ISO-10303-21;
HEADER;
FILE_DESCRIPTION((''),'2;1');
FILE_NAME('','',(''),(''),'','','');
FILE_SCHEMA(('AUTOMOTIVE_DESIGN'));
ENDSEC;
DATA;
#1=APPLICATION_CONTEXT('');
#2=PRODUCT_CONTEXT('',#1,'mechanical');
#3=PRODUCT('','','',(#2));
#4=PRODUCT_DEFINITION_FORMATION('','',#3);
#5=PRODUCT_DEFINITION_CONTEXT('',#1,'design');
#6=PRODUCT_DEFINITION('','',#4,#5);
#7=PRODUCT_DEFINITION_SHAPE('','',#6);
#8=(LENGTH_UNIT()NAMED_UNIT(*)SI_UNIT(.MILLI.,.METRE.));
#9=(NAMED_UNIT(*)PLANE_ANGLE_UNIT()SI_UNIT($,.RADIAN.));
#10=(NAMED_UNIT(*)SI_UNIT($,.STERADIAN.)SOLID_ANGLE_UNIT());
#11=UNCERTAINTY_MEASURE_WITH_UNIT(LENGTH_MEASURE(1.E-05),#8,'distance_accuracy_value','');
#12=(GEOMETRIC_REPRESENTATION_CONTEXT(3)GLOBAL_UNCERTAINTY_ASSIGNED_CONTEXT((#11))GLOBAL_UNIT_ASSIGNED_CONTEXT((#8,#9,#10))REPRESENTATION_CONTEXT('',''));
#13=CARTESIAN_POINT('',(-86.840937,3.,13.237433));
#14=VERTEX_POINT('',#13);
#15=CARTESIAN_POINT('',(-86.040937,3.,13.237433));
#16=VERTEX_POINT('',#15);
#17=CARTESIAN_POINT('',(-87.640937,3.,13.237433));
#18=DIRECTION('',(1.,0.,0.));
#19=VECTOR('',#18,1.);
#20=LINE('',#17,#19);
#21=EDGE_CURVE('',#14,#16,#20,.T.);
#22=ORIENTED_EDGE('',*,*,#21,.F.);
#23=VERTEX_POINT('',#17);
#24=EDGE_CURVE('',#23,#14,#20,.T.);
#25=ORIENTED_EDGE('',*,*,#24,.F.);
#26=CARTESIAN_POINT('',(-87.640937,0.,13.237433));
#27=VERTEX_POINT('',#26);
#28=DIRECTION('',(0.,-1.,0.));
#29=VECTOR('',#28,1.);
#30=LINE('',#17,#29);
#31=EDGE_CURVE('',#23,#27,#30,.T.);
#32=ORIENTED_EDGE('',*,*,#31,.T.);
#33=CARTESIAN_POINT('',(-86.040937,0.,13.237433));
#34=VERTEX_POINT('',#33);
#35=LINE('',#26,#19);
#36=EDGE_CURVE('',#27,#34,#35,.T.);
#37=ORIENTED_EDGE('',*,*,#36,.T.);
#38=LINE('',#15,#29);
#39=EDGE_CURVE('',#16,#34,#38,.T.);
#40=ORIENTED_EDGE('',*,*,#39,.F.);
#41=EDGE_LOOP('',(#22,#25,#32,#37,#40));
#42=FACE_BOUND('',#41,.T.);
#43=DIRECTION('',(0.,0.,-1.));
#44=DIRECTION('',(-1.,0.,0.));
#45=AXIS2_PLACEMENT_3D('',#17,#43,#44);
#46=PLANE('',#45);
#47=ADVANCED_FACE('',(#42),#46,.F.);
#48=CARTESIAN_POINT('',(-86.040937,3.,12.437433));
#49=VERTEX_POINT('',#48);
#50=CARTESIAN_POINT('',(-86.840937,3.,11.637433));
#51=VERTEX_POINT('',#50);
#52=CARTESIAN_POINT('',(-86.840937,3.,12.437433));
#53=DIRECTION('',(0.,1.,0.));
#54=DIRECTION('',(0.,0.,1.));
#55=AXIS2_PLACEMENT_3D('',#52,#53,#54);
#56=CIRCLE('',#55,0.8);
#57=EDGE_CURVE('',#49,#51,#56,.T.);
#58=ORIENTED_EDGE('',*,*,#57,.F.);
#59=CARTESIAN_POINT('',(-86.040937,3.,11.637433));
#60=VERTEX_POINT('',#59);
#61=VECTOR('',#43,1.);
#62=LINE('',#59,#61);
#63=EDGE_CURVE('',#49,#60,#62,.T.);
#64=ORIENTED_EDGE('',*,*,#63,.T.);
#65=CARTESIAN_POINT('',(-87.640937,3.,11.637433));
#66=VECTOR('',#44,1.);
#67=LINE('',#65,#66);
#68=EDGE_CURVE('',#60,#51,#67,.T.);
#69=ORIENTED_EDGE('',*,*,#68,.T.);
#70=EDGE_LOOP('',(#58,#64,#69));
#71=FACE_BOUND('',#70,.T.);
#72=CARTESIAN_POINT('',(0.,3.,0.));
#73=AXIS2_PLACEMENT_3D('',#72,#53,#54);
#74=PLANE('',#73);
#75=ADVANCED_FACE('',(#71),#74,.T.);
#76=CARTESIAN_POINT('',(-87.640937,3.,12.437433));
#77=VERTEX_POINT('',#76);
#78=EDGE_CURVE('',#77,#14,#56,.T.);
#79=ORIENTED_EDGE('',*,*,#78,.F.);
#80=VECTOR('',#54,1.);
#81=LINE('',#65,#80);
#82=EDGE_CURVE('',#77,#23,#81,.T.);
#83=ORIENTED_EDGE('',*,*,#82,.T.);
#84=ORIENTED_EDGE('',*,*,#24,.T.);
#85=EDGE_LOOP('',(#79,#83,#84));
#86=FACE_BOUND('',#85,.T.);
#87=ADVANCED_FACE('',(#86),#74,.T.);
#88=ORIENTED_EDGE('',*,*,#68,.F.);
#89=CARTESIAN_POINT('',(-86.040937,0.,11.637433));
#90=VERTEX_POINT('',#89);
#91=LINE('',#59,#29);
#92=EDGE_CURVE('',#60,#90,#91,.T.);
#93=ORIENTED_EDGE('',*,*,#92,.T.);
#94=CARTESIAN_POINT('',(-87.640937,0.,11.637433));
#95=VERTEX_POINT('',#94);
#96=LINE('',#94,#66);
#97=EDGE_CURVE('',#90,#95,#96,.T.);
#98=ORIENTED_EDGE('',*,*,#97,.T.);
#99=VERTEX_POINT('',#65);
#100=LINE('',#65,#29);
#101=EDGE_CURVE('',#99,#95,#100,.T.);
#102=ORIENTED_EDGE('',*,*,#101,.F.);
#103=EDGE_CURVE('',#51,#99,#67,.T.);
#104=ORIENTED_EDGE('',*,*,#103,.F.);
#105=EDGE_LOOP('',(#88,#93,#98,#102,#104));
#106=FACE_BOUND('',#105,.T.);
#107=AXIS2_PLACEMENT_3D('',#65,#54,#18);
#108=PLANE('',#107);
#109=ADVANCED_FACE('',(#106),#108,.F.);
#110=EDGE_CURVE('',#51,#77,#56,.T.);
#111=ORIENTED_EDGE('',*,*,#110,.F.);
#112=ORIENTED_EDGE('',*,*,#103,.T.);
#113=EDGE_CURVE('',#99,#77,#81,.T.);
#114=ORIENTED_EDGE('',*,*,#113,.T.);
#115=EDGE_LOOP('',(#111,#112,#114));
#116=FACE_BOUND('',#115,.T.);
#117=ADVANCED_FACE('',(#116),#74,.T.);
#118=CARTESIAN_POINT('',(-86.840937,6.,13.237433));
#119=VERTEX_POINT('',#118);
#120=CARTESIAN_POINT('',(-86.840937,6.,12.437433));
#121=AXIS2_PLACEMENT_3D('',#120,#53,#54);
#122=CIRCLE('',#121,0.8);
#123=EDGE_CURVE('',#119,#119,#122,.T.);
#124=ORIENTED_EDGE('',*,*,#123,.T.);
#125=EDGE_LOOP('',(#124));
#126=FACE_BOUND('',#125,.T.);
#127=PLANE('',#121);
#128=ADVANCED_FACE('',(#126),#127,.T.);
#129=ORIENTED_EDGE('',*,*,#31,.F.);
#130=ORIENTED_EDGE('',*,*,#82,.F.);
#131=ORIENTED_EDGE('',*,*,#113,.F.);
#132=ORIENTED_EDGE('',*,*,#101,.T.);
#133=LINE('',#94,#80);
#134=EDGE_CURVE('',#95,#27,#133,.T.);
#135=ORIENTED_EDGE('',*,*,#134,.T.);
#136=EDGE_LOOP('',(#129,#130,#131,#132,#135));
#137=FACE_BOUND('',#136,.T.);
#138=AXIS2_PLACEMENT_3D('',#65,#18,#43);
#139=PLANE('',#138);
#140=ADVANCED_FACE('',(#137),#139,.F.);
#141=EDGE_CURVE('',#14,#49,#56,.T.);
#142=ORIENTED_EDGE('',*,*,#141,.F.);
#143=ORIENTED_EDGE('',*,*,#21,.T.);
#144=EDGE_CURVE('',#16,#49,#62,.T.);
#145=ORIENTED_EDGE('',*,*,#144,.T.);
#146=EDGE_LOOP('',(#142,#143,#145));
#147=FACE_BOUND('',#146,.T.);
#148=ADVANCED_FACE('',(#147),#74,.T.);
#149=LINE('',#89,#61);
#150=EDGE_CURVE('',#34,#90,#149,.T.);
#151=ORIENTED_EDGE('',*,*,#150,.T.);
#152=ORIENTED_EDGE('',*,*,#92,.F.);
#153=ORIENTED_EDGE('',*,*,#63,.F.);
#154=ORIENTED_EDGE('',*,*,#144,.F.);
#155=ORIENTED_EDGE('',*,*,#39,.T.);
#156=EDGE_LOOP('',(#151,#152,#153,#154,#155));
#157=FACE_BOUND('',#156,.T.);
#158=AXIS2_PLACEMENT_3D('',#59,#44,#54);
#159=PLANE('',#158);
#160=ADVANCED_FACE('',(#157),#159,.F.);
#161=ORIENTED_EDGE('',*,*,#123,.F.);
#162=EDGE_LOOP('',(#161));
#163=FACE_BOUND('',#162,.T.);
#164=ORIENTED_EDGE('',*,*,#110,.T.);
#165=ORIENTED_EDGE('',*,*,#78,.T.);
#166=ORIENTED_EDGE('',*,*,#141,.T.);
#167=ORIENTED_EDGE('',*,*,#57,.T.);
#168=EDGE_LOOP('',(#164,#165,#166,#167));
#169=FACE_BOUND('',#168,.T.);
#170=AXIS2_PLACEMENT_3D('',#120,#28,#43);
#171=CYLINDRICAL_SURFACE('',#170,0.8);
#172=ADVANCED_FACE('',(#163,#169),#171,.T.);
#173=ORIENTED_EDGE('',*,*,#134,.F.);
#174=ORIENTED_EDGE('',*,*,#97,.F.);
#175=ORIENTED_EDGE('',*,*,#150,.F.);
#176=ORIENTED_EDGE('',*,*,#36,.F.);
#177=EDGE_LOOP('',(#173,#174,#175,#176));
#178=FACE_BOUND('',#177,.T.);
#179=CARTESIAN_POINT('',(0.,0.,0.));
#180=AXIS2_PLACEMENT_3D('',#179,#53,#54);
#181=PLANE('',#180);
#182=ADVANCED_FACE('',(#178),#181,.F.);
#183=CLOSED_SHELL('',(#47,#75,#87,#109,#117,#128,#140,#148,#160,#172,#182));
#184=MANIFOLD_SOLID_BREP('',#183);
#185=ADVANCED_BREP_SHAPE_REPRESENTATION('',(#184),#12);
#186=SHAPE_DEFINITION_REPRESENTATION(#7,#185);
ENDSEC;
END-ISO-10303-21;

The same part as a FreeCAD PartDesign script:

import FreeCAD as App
import Part
import Sketcher

V = App.Vector


def add_polygon(sketch, points):
    """Adds a closed chain of lines whose ends are joined by coincident constraints."""
    first, n = sketch.GeometryCount, len(points)
    for a, b in zip(points, points[1:] + points[:1]):
        sketch.addGeometry(Part.LineSegment(App.Vector(*a, 0), App.Vector(*b, 0)), False)
    for i in range(n):
        sketch.addConstraint(Sketcher.Constraint("Coincident", first + i, 2, first + (i + 1) % n, 1))

doc = App.newDocument("Part")
params = doc.addObject("Spreadsheet::Sheet", "Params")
for row, (alias, value) in enumerate([
    ("sketch1_width", "1.6 mm"),
    ("pad1_length", "3 mm"),
    ("sketch2_diameter", "1.6 mm"),
    ("pad2_length", "3 mm"),
], start=1):
    params.set(f"A{row}", alias)
    params.set(f"B{row}", "=" + value)
    params.setAlias(f"B{row}", alias)

body = doc.addObject("PartDesign::Body", "Body")

sketch1 = body.newObject("Sketcher::SketchObject", "Sketch")
sketch1.AttachmentSupport = (doc.getObject("XZ_Plane"), [""])
sketch1.MapMode = "FlatFace"
add_polygon(sketch1, [(-87.640937, 11.637433), (-87.640937, 13.237433), (-86.040937, 13.237433), (-86.040937, 11.637433)])
sketch1.addConstraint(Sketcher.Constraint("Vertical", 0))
sketch1.addConstraint(Sketcher.Constraint("Horizontal", 1))
sketch1.addConstraint(Sketcher.Constraint("Vertical", 2))
sketch1.addConstraint(Sketcher.Constraint("Horizontal", 3))
sketch1.addConstraint(Sketcher.Constraint("Equal", 3, 0))
sketch1.addConstraint(Sketcher.Constraint("DistanceX", 1, 1, 1, 2, 1.6))
sketch1.addConstraint(Sketcher.Constraint("DistanceX", 0, 2, -1, 1, 87.640937))
sketch1.addConstraint(Sketcher.Constraint("DistanceY", -1, 1, 0, 2, 13.237433))
sketch1.setExpression("Constraints[9]", "Params.sketch1_width")
pad1 = body.newObject("PartDesign::Pad", "Pad")
pad1.Profile = sketch1
pad1.setExpression("Length", "Params.pad1_length")
pad1.Reversed = True

sketch2 = body.newObject("Sketcher::SketchObject", "Sketch001")
sketch2.AttachmentSupport = (doc.getObject("XZ_Plane"), [""])
sketch2.MapMode = "FlatFace"
sketch2.AttachmentOffset = App.Placement(V(0, 0, -3), App.Rotation())
sketch2.addGeometry(Part.Circle(V(-86.840937, 12.437433, 0), V(0, 0, 1), 0.8), False)
sketch2.addConstraint(Sketcher.Constraint("Diameter", 0, 1.6))
sketch2.addConstraint(Sketcher.Constraint("DistanceX", 0, 3, -1, 1, 86.840937))
sketch2.addConstraint(Sketcher.Constraint("DistanceY", -1, 1, 0, 3, 12.437433))
sketch2.setExpression("Constraints[0]", "Params.sketch2_diameter")
pad2 = body.newObject("PartDesign::Pad", "Pad001")
pad2.Profile = sketch2
pad2.setExpression("Length", "Params.pad2_length")
pad2.Reversed = True

doc.recompute()
